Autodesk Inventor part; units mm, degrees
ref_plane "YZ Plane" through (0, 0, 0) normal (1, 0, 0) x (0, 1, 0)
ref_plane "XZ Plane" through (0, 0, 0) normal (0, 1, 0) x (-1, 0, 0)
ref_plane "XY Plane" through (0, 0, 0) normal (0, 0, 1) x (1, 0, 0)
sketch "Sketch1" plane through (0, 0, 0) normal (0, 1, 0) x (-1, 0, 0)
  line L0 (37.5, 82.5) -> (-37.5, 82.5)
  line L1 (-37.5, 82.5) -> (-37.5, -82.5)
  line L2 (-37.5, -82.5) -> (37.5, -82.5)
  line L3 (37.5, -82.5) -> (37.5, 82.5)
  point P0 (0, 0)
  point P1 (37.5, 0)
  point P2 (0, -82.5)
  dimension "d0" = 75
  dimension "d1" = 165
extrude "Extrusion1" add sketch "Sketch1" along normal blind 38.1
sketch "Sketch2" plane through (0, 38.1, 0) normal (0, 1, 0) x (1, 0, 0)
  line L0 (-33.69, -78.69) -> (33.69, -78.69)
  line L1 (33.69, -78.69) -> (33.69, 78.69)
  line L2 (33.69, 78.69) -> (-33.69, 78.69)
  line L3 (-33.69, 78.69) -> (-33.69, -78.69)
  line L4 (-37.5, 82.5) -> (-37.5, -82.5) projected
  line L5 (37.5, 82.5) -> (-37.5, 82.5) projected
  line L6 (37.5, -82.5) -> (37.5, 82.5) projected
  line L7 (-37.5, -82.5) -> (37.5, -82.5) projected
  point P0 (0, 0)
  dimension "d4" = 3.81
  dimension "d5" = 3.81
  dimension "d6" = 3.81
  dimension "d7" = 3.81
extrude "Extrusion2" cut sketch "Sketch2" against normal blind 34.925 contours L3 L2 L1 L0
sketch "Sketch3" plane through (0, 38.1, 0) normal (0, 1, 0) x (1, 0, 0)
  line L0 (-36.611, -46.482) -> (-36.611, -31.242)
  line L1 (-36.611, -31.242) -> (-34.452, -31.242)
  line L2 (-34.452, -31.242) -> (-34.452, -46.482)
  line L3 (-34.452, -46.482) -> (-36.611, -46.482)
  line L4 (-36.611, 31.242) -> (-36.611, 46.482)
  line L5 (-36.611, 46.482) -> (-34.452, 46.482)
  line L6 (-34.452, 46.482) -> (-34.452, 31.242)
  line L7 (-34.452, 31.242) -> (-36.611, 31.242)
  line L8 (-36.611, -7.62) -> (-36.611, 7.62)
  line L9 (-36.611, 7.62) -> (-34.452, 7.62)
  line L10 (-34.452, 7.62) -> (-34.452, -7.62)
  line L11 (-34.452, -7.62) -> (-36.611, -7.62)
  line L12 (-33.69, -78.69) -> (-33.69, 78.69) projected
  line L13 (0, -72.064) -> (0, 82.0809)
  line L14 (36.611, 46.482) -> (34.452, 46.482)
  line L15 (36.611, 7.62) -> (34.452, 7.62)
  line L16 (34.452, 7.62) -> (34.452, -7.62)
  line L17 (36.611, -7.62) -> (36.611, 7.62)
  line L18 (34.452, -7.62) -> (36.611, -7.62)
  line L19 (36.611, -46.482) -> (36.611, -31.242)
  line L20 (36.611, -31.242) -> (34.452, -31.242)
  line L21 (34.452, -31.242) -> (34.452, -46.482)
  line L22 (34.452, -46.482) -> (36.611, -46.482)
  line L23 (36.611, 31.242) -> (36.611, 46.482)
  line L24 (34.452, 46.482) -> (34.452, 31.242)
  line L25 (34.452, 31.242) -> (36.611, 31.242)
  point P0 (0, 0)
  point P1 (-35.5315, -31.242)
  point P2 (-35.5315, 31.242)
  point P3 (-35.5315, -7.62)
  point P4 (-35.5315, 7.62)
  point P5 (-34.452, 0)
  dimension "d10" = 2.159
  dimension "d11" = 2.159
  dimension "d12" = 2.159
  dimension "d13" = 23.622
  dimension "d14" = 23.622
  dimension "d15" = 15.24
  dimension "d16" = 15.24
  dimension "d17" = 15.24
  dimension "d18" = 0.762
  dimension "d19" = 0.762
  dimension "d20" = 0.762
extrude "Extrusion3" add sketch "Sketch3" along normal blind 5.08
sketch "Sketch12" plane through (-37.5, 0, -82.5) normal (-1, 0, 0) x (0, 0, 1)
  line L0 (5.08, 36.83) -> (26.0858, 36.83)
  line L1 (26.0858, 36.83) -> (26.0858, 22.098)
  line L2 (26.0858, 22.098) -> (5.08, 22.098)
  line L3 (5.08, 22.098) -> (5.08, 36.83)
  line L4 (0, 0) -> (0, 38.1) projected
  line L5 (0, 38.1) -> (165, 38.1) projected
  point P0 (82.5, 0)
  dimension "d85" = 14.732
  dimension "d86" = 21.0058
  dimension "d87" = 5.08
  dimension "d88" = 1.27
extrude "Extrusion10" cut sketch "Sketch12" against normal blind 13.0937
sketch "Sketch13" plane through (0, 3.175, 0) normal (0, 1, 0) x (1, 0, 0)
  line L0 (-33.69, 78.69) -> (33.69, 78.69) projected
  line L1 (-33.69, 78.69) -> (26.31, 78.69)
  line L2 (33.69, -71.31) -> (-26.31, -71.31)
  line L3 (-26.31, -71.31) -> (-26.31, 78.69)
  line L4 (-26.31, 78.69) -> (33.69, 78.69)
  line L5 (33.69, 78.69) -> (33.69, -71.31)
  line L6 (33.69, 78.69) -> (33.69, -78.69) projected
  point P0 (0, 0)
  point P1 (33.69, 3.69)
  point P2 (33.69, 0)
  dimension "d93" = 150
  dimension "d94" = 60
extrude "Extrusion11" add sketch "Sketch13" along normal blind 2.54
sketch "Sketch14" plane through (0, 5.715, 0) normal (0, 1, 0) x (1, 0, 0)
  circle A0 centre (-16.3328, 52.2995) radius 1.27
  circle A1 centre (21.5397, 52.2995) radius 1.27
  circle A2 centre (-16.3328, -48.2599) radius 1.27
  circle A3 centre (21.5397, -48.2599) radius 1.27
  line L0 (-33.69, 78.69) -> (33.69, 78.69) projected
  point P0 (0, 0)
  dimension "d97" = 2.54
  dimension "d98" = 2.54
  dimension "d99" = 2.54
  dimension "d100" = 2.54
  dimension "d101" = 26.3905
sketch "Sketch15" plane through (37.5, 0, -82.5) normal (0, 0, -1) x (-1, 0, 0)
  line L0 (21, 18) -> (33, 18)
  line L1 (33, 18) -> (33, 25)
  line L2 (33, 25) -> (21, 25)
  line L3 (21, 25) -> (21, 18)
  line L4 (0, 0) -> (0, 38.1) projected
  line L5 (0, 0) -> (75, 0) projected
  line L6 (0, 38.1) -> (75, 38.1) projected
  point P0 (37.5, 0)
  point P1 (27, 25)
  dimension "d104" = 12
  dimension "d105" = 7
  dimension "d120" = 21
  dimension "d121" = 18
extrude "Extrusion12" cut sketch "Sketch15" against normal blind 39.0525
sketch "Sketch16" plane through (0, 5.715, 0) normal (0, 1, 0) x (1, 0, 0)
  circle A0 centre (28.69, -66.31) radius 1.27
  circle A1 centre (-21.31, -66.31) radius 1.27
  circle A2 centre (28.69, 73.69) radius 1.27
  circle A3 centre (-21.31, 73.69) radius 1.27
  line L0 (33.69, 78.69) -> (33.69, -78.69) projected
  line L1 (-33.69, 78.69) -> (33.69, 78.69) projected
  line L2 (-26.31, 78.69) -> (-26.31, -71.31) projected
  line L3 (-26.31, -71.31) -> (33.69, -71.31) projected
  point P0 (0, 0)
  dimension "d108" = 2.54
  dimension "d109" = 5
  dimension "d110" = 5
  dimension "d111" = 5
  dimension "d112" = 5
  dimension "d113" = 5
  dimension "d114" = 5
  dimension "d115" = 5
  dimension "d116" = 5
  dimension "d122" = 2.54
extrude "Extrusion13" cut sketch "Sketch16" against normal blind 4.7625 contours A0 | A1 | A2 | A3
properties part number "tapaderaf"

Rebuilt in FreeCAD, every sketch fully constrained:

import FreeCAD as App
import Part
import Sketcher

V = App.Vector
Q = App.Units.Quantity


def add_polygon(sketch, points):
    """Adds a closed chain of lines whose ends are joined by coincident constraints."""
    first, n = sketch.GeometryCount, len(points)
    for a, b in zip(points, points[1:] + points[:1]):
        sketch.addGeometry(Part.LineSegment(App.Vector(*a, 0), App.Vector(*b, 0)), False)
    for i in range(n):
        sketch.addConstraint(Sketcher.Constraint("Coincident", first + i, 2, first + (i + 1) % n, 1))

doc = App.newDocument("Part")
body = doc.addObject("PartDesign::Body", "Body")

# Sketch on XZ plane
sketch1 = doc.addObject("Sketcher::SketchObject", "Sketch")
body.addObject(sketch1)
sketch1.AttachmentSupport = (doc.XZ_Plane, [""])
sketch1.MapMode = "FlatFace"
add_polygon(sketch1, [(-38, -82), (-38, 82), (38, 82), (38, -82)])  # lines 0-3
sketch1.addConstraint(Sketcher.Constraint("Vertical", 0))
sketch1.addConstraint(Sketcher.Constraint("Horizontal", 1))
sketch1.addConstraint(Sketcher.Constraint("Vertical", 2))
sketch1.addConstraint(Sketcher.Constraint("Horizontal", 3))
sketch1.addConstraint(Sketcher.Constraint("Symmetric", 0, 2, 2, 2, -1, 1))
sketch1.addConstraint(Sketcher.Constraint("DistanceX", 1, 1, 1, 2, Q("75 mm")))
sketch1.addConstraint(Sketcher.Constraint("DistanceY", 0, 1, 0, 2, Q("165 mm")))
pad1 = doc.addObject("PartDesign::Pad", "Pad")
body.addObject(pad1)
pad1.Profile = sketch1
pad1.Length = Q("1.5 in")
pad1.Reversed = True

# Sketch on XZ plane
sketch2 = doc.addObject("Sketcher::SketchObject", "Sketch001")
body.addObject(sketch2)
sketch2.AttachmentSupport = (doc.XZ_Plane, [""])
sketch2.MapMode = "FlatFace"
sketch2.AttachmentOffset = App.Placement(V(0, 0, -1.5 * 25.4), App.Rotation())
add_polygon(sketch2, [(-34, -79), (-34, 79), (34, 79), (34, -79)])  # lines 0-3
sketch2.addConstraint(Sketcher.Constraint("Vertical", 0))
sketch2.addConstraint(Sketcher.Constraint("Horizontal", 1))
sketch2.addConstraint(Sketcher.Constraint("Vertical", 2))
sketch2.addConstraint(Sketcher.Constraint("Horizontal", 3))
sketch2.addConstraint(Sketcher.Constraint("Symmetric", 0, 2, 2, 2, -1, 1))
sketch2.addConstraint(Sketcher.Constraint("DistanceX", 1, 1, 1, 2, Q("67.38 mm")))
sketch2.addConstraint(Sketcher.Constraint("DistanceY", 0, 1, 0, 2, Q("157.38 mm")))
pocket1 = doc.addObject("PartDesign::Pocket", "Pocket")
body.addObject(pocket1)
pocket1.Profile = sketch2
pocket1.Length = Q("1.375 in")
pocket1.Reversed = True

# Sketch on XZ plane
sketch3 = doc.addObject("Sketcher::SketchObject", "Sketch002")
body.addObject(sketch3)
sketch3.AttachmentSupport = (doc.XZ_Plane, [""])
sketch3.MapMode = "FlatFace"
sketch3.AttachmentOffset = App.Placement(V(0, 0, -1.5 * 25.4), App.Rotation())
add_polygon(sketch3, [(-36.6, 31.2), (-36.6, 46.5), (-34.5, 46.5), (-34.5, 31.2)])  # lines 0-3
add_polygon(sketch3, [(-36.6, -46.5), (-36.6, -31.2), (-34.5, -31.2), (-34.5, -46.5)])  # lines 4-7
add_polygon(sketch3, [(-36.6, -7.6), (-36.6, 7.6), (-34.5, 7.6), (-34.5, -7.6)])  # lines 8-11
add_polygon(sketch3, [(36.6, -31.2), (36.6, -46.5), (34.5, -46.5), (34.5, -31.2)])  # lines 12-15
add_polygon(sketch3, [(36.6, 7.6), (36.6, -7.6), (34.5, -7.6), (34.5, 7.6)])  # lines 16-19
add_polygon(sketch3, [(34.5, 46.5), (36.6, 46.5), (36.6, 31.2), (34.5, 31.2)])  # lines 20-23
sketch3.addConstraint(Sketcher.Constraint("Vertical", 0))
sketch3.addConstraint(Sketcher.Constraint("Horizontal", 1))
sketch3.addConstraint(Sketcher.Constraint("Vertical", 2))
sketch3.addConstraint(Sketcher.Constraint("Horizontal", 3))
sketch3.addConstraint(Sketcher.Constraint("Vertical", 4))
sketch3.addConstraint(Sketcher.Constraint("Horizontal", 5))
sketch3.addConstraint(Sketcher.Constraint("Vertical", 6))
sketch3.addConstraint(Sketcher.Constraint("Horizontal", 7))
sketch3.addConstraint(Sketcher.Constraint("Vertical", 8))
sketch3.addConstraint(Sketcher.Constraint("Horizontal", 9))
sketch3.addConstraint(Sketcher.Constraint("Vertical", 10))
sketch3.addConstraint(Sketcher.Constraint("Horizontal", 11))
sketch3.addConstraint(Sketcher.Constraint("Vertical", 12))
sketch3.addConstraint(Sketcher.Constraint("Horizontal", 13))
sketch3.addConstraint(Sketcher.Constraint("Vertical", 14))
sketch3.addConstraint(Sketcher.Constraint("Horizontal", 15))
sketch3.addConstraint(Sketcher.Constraint("Vertical", 16))
sketch3.addConstraint(Sketcher.Constraint("Horizontal", 17))
sketch3.addConstraint(Sketcher.Constraint("Vertical", 18))
sketch3.addConstraint(Sketcher.Constraint("Horizontal", 19))
sketch3.addConstraint(Sketcher.Constraint("Horizontal", 20))
sketch3.addConstraint(Sketcher.Constraint("Vertical", 21))
sketch3.addConstraint(Sketcher.Constraint("Horizontal", 22))
sketch3.addConstraint(Sketcher.Constraint("Vertical", 23))
sketch3.addConstraint(Sketcher.Constraint("Symmetric", 0, 2, 12, 2, -1, 1))
sketch3.addConstraint(Sketcher.Constraint("Symmetric", 2, 2, 14, 2, -1, 1))
sketch3.addConstraint(Sketcher.Constraint("Symmetric", 8, 2, 16, 2, -1, 1))
sketch3.addConstraint(Sketcher.Constraint("Symmetric", 10, 2, 18, 2, -1, 1))
sketch3.addConstraint(Sketcher.Constraint("Symmetric", 7, 2, 20, 2, -1, 1))
sketch3.addConstraint(Sketcher.Constraint("Symmetric", 5, 2, 22, 2, -1, 1))
sketch3.addConstraint(Sketcher.Constraint("Symmetric", 7, 2, 12, 2, -2))
sketch3.addConstraint(Sketcher.Constraint("Symmetric", 5, 2, 14, 2, -2))
sketch3.addConstraint(Sketcher.Constraint("Horizontal", 11, 2, 16, 2))
sketch3.addConstraint(Sketcher.Constraint("Vertical", 7, 2, 8, 2))
sketch3.addConstraint(Sketcher.Constraint("Vertical", 6, 2, 9, 2))
sketch3.addConstraint(Sketcher.Constraint("Equal", 6, 8))
sketch3.addConstraint(Sketcher.Constraint("DistanceY", 0, 1, 0, 2, Q("0.6 in")))
sketch3.addConstraint(Sketcher.Constraint("DistanceX", 1, 1, 1, 2, Q("0.085 in")))
sketch3.addConstraint(Sketcher.Constraint("DistanceY", 8, 2, 3, 2, Q("0.93 in")))
sketch3.addConstraint(Sketcher.Constraint("DistanceX", 0, 2, -1, 1, Q("36.611 mm")))
pad2 = doc.addObject("PartDesign::Pad", "Pad001")
body.addObject(pad2)
pad2.Profile = sketch3
pad2.Length = Q("0.2 in")
pad2.Reversed = True

# Sketch on YZ plane
sketch4 = doc.addObject("Sketcher::SketchObject", "Sketch003")
body.addObject(sketch4)
sketch4.AttachmentSupport = (doc.YZ_Plane, [""])
sketch4.MapMode = "FlatFace"
sketch4.AttachmentOffset = App.Placement(V(0, 0, -37.5), App.Rotation())
add_polygon(sketch4, [(37, -56), (37, -77), (22, -77), (22, -56)])  # lines 0-3
sketch4.addConstraint(Sketcher.Constraint("Vertical", 0))
sketch4.addConstraint(Sketcher.Constraint("Horizontal", 1))
sketch4.addConstraint(Sketcher.Constraint("Vertical", 2))
sketch4.addConstraint(Sketcher.Constraint("Horizontal", 3))
sketch4.addConstraint(Sketcher.Constraint("DistanceX", 1, 2, 1, 1, Q("0.58 in")))
sketch4.addConstraint(Sketcher.Constraint("DistanceY", 0, 2, 0, 1, Q("0.827 in")))
sketch4.addConstraint(Sketcher.Constraint("DistanceX", -1, 1, 0, 2, Q("1.45 in")))
sketch4.addConstraint(Sketcher.Constraint("DistanceY", 0, 2, -1, 1, Q("77.42 mm")))
pocket2 = doc.addObject("PartDesign::Pocket", "Pocket001")
body.addObject(pocket2)
pocket2.Profile = sketch4
pocket2.Length = Q("0.5155 in")
pocket2.Reversed = True

# Sketch on XZ plane
sketch5 = doc.addObject("Sketcher::SketchObject", "Sketch004")
body.addObject(sketch5)
sketch5.AttachmentSupport = (doc.XZ_Plane, [""])
sketch5.MapMode = "FlatFace"
sketch5.AttachmentOffset = App.Placement(V(0, 0, -0.125 * 25.4), App.Rotation())
add_polygon(sketch5, [(34, -79), (-26, -79), (-26, 71), (34, 71)])  # lines 0-3
sketch5.addConstraint(Sketcher.Constraint("Horizontal", 0))
sketch5.addConstraint(Sketcher.Constraint("Vertical", 1))
sketch5.addConstraint(Sketcher.Constraint("Horizontal", 2))
sketch5.addConstraint(Sketcher.Constraint("Vertical", 3))
sketch5.addConstraint(Sketcher.Constraint("DistanceX", 0, 2, 0, 1, Q("2.3622 in")))
sketch5.addConstraint(Sketcher.Constraint("DistanceY", 1, 1, 1, 2, Q("5.9055 in")))
sketch5.addConstraint(Sketcher.Constraint("DistanceX", 0, 2, -1, 1, Q("26.31 mm")))
sketch5.addConstraint(Sketcher.Constraint("DistanceY", 0, 2, -1, 1, Q("78.69 mm")))
pad3 = doc.addObject("PartDesign::Pad", "Pad002")
body.addObject(pad3)
pad3.Profile = sketch5
pad3.Length = Q("0.1 in")
pad3.Reversed = True

# Sketch on XY plane
sketch6 = doc.addObject("Sketcher::SketchObject", "Sketch005")
body.addObject(sketch6)
sketch6.AttachmentSupport = (doc.XY_Plane, [""])
sketch6.MapMode = "FlatFace"
sketch6.AttachmentOffset = App.Placement(V(0, 0, -82.5), App.Rotation())
add_polygon(sketch6, [(16, 25), (16, 18), (4, 18), (4, 25)])  # lines 0-3
sketch6.addConstraint(Sketcher.Constraint("Vertical", 0))
sketch6.addConstraint(Sketcher.Constraint("Horizontal", 1))
sketch6.addConstraint(Sketcher.Constraint("Vertical", 2))
sketch6.addConstraint(Sketcher.Constraint("Horizontal", 3))
sketch6.addConstraint(Sketcher.Constraint("DistanceY", 0, 2, 0, 1, Q("0.2756 in")))
sketch6.addConstraint(Sketcher.Constraint("DistanceX", 1, 2, 1, 1, Q("12 mm")))
sketch6.addConstraint(Sketcher.Constraint("DistanceY", -1, 1, 0, 2, Q("18 mm")))
sketch6.addConstraint(Sketcher.Constraint("DistanceX", -1, 1, 0, 2, Q("0.6496 in")))
pocket3 = doc.addObject("PartDesign::Pocket", "Pocket002")
body.addObject(pocket3)
pocket3.Profile = sketch6
pocket3.Length = Q("1.5375 in")
pocket3.Reversed = True

# Sketch on XZ plane
sketch7 = doc.addObject("Sketcher::SketchObject", "Sketch006")
body.addObject(sketch7)
sketch7.AttachmentSupport = (doc.XZ_Plane, [""])
sketch7.MapMode = "FlatFace"
sketch7.AttachmentOffset = App.Placement(V(0, 0, -0.225 * 25.4), App.Rotation())
sketch7.addGeometry(Part.Circle(V(28.7, 66.3, 0), V(0, 0, 1), 1.3), False)
sketch7.addGeometry(Part.Circle(V(-21.3, 66.3, 0), V(0, 0, 1), 1.3), False)
sketch7.addGeometry(Part.Circle(V(28.7, -73.7, 0), V(0, 0, 1), 1.3), False)
sketch7.addGeometry(Part.Circle(V(-21.3, -73.7, 0), V(0, 0, 1), 1.3), False)
sketch7.addConstraint(Sketcher.Constraint("Equal", 0, 1))
sketch7.addConstraint(Sketcher.Constraint("Equal", 1, 2))
sketch7.addConstraint(Sketcher.Constraint("Equal", 2, 3))
sketch7.addConstraint(Sketcher.Constraint("Horizontal", 0, 3, 1, 3))
sketch7.addConstraint(Sketcher.Constraint("Horizontal", 2, 3, 3, 3))
sketch7.addConstraint(Sketcher.Constraint("Vertical", 0, 3, 2, 3))
sketch7.addConstraint(Sketcher.Constraint("Vertical", 1, 3, 3, 3))
sketch7.addConstraint(Sketcher.Constraint("Diameter", 0, Q("0.1 in")))
sketch7.addConstraint(Sketcher.Constraint("DistanceX", 1, 3, 0, 3, Q("1.9685 in")))
sketch7.addConstraint(Sketcher.Constraint("DistanceY", 2, 3, 0, 3, Q("5.5118 in")))
sketch7.addConstraint(Sketcher.Constraint("DistanceX", -1, 1, 0, 3, Q("28.69 mm")))
sketch7.addConstraint(Sketcher.Constraint("DistanceY", -1, 1, 0, 3, Q("66.31 mm")))
pocket4 = doc.addObject("PartDesign::Pocket", "Pocket003")
body.addObject(pocket4)
pocket4.Profile = sketch7
pocket4.Length = Q("0.1875 in")
pocket4.Reversed = True

doc.recompute()
